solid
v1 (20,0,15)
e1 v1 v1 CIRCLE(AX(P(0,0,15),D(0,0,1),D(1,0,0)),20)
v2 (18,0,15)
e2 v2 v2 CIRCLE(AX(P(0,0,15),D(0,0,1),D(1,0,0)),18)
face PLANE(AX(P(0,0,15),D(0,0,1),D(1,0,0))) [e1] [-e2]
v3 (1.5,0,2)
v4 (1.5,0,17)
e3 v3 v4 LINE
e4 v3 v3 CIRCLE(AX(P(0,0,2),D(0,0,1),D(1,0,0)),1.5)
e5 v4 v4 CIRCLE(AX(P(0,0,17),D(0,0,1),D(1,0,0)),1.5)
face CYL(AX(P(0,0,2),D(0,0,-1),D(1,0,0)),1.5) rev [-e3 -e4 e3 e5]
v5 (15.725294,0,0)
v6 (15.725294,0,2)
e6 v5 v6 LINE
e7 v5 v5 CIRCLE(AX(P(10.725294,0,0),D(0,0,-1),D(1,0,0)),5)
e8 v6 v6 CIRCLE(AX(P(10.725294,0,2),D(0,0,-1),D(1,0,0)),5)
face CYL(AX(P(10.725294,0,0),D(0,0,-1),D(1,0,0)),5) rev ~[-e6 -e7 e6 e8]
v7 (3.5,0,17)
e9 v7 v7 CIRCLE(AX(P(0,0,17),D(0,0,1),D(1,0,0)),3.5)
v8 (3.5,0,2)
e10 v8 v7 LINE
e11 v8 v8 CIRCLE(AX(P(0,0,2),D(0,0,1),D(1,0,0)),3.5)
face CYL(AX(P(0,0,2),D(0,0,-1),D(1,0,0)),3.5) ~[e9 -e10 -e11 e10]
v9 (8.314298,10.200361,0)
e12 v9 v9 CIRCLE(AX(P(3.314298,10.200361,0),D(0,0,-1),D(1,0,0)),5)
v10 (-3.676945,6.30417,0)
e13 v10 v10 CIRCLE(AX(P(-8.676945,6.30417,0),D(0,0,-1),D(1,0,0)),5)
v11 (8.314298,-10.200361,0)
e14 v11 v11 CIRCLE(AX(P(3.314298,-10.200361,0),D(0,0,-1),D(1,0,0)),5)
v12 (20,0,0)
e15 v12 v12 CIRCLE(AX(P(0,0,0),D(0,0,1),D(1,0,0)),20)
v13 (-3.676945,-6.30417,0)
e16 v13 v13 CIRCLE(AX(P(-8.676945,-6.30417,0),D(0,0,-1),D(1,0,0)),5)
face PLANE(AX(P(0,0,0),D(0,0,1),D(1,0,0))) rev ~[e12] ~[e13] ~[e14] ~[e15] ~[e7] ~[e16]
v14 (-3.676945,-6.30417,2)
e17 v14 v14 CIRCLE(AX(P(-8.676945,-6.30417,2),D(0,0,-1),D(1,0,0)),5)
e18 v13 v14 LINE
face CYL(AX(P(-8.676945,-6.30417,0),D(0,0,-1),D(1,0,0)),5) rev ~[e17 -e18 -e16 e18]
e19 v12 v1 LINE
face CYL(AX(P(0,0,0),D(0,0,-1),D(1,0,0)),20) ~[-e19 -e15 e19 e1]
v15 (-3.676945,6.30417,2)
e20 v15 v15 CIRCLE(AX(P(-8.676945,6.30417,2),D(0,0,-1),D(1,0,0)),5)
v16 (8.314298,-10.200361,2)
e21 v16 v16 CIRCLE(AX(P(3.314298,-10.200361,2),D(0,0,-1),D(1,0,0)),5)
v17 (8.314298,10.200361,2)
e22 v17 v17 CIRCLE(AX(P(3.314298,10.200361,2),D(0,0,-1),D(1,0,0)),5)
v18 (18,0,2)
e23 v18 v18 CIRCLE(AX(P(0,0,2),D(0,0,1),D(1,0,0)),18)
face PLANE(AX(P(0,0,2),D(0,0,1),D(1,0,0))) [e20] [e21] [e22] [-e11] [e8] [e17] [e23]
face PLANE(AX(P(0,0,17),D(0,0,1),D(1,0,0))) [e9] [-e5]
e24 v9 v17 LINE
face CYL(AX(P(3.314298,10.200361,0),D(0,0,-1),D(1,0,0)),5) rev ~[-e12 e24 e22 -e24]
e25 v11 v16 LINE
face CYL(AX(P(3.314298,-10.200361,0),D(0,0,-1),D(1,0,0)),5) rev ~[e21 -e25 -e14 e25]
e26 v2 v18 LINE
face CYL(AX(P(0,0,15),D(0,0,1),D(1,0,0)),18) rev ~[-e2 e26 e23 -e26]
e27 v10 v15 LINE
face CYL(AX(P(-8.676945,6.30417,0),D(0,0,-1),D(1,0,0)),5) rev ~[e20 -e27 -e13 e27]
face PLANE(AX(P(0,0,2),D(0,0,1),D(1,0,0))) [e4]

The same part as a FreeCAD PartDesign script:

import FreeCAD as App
import Part
import Sketcher
Q = App.Units.Quantity

doc = App.newDocument("Part")
params = doc.addObject("Spreadsheet::Sheet", "Params")
for row, (alias, value) in enumerate([
    ("sketch1_diameter", "40 mm"),
    ("pad1_length", "15 mm"),
    ("sketch2_diameter", "36 mm"),
    ("pocket1_length", "13 mm"),
    ("sketch3_diameter", "7 mm"),
    ("sketch3_diameter2", "3 mm"),
    ("pad2_length", "15 mm"),
    ("sketch4_diameter", "10 mm"),
    ("pocket2_length", "2 mm"),
], start=1):
    params.set(f"A{row}", alias)
    params.set(f"B{row}", "=" + value)
    params.setAlias(f"B{row}", alias)

body = doc.addObject("PartDesign::Body", "Body")

# Sketch on XY plane
sketch1 = body.newObject("Sketcher::SketchObject", "Sketch")
sketch1.AttachmentSupport = (doc.getObject("XY_Plane"), [""])
sketch1.MapMode = "FlatFace"
sketch1.addGeometry(Part.Circle(App.Vector(0, 0, 0), App.Vector(0, 0, 1), 20), False)
sketch1.addConstraint([
    Sketcher.Constraint("Coincident", 0, 3, -1, 1),
    Sketcher.Constraint("Diameter", 0, Q("40 mm")),
])
sketch1.setExpression("Constraints[1]", "Params.sketch1_diameter")
pad1 = body.newObject("PartDesign::Pad", "Pad")
pad1.Profile = sketch1
pad1.setExpression("Length", "Params.pad1_length")

# Sketch on XY plane
sketch2 = body.newObject("Sketcher::SketchObject", "Sketch001")
sketch2.AttachmentSupport = (doc.getObject("XY_Plane"), [""])
sketch2.MapMode = "FlatFace"
sketch2.AttachmentOffset = App.Placement(App.Vector(0, 0, 15), App.Rotation())
sketch2.addGeometry(Part.Circle(App.Vector(0, 0, 0), App.Vector(0, 0, 1), 18), False)
sketch2.addConstraint([
    Sketcher.Constraint("Coincident", 0, 3, -1, 1),
    Sketcher.Constraint("Diameter", 0, Q("36 mm")),
])
sketch2.setExpression("Constraints[1]", "Params.sketch2_diameter")
pocket1 = body.newObject("PartDesign::Pocket", "Pocket")
pocket1.Profile = sketch2
pocket1.setExpression("Length", "Params.pocket1_length")

# Sketch on XY plane
sketch3 = body.newObject("Sketcher::SketchObject", "Sketch002")
sketch3.AttachmentSupport = (doc.getObject("XY_Plane"), [""])
sketch3.MapMode = "FlatFace"
sketch3.AttachmentOffset = App.Placement(App.Vector(0, 0, 2), App.Rotation())
sketch3.addGeometry([
    Part.Circle(App.Vector(0, 0, 0), App.Vector(0, 0, 1), 3.5),
    Part.Circle(App.Vector(0, 0, 0), App.Vector(0, 0, 1), 1.5),
], False)
sketch3.addConstraint([
    Sketcher.Constraint("Coincident", 0, 3, -1, 1),
    Sketcher.Constraint("Coincident", 1, 3, -1, 1),
    Sketcher.Constraint("Diameter", 0, Q("7 mm")),
    Sketcher.Constraint("Diameter", 1, Q("3 mm")),
])
sketch3.setExpression("Constraints[2]", "Params.sketch3_diameter")
sketch3.setExpression("Constraints[3]", "Params.sketch3_diameter2")
pad2 = body.newObject("PartDesign::Pad", "Pad001")
pad2.Profile = sketch3
pad2.setExpression("Length", "Params.pad2_length")

# Sketch on XY plane
sketch4 = body.newObject("Sketcher::SketchObject", "Sketch003")
sketch4.AttachmentSupport = (doc.getObject("XY_Plane"), [""])
sketch4.MapMode = "FlatFace"
sketch4.addGeometry([
    Part.Circle(App.Vector(11, 0, 0), App.Vector(0, 0, 1), 5),  # 0
    Part.Circle(App.Vector(3, 10, 0), App.Vector(0, 0, 1), 5),  # 1
    Part.Circle(App.Vector(-9, 6, 0), App.Vector(0, 0, 1), 5),  # 2
    Part.Circle(App.Vector(-9, -6, 0), App.Vector(0, 0, 1), 5),  # 3
    Part.Circle(App.Vector(3, -10, 0), App.Vector(0, 0, 1), 5),  # 4
], False)
sketch4.addConstraint([
    Sketcher.Constraint("Equal", 0, 1),
    Sketcher.Constraint("Equal", 1, 2),
    Sketcher.Constraint("Equal", 2, 3),
    Sketcher.Constraint("Equal", 3, 4),
    Sketcher.Constraint("Symmetric", 2, 3, 3, 3, -1),
    Sketcher.Constraint("Symmetric", 1, 3, 4, 3, -1),
    Sketcher.Constraint("PointOnObject", 0, 3, -1),
    Sketcher.Constraint("Diameter", 0, Q("10 mm")),
    Sketcher.Constraint("DistanceX", -1, 1, 1, 3, Q("3.314298 mm")),
    Sketcher.Constraint("DistanceY", -1, 1, 1, 3, Q("10.200361 mm")),
    Sketcher.Constraint("DistanceY", -1, 1, 2, 3, Q("6.30417 mm")),
    Sketcher.Constraint("DistanceX", 2, 3, 0, 3, Q("19.402239 mm")),
    Sketcher.Constraint("DistanceX", -1, 1, 0, 3, Q("10.725294 mm")),
])
sketch4.setExpression("Constraints[7]", "Params.sketch4_diameter")
pocket2 = body.newObject("PartDesign::Pocket", "Pocket001")
pocket2.Profile = sketch4
pocket2.setExpression("Length", "Params.pocket2_length")
pocket2.Reversed = True

doc.recompute()
